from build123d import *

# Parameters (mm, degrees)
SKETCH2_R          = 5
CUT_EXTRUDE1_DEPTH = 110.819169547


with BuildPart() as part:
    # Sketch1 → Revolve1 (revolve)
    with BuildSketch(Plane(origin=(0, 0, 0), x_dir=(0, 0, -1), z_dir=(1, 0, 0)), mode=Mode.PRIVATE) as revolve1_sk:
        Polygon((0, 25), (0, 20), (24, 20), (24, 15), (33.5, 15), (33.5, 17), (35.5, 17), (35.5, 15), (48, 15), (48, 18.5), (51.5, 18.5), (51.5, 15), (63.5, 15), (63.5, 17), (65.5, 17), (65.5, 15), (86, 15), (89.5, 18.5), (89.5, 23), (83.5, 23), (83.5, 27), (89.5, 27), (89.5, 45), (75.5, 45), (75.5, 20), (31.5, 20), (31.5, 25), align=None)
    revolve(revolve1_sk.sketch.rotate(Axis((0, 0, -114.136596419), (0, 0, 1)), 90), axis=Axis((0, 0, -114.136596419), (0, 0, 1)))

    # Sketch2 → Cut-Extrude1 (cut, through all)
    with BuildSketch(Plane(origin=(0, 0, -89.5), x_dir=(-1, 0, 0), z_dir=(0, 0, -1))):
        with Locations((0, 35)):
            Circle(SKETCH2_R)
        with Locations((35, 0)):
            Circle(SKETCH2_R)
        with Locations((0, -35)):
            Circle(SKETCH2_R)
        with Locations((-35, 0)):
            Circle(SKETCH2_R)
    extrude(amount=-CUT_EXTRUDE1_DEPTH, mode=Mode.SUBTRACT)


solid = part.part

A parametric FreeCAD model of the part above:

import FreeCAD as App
import Part
import Sketcher

V = App.Vector
Q = App.Units.Quantity


def add_polygon(sketch, points):
    """Adds a closed chain of lines whose ends are joined by coincident constraints."""
    first, n = sketch.GeometryCount, len(points)
    for a, b in zip(points, points[1:] + points[:1]):
        sketch.addGeometry(Part.LineSegment(App.Vector(*a, 0), App.Vector(*b, 0)), False)
    for i in range(n):
        sketch.addConstraint(Sketcher.Constraint("Coincident", first + i, 2, first + (i + 1) % n, 1))

doc = App.newDocument("Part")
params = doc.addObject("Spreadsheet::Sheet", "Params")
for row, (alias, value) in enumerate([
    ("sketch1_width", "5 mm"),
    ("sketch1_width2", "2 mm"),
    ("sketch1_width3", "4 mm"),
    ("sketch1_width4", "18 mm"),
    ("sketch1_width5", "25 mm"),
    ("revolution_angle", "360 deg"),
    ("sketch2_diameter", "10 mm"),
], start=1):
    params.set(f"A{row}", alias)
    params.set(f"B{row}", "=" + value)
    params.setAlias(f"B{row}", alias)

body = doc.addObject("PartDesign::Body", "Body")

sketch1 = doc.addObject("Sketcher::SketchObject", "Sketch")
body.addObject(sketch1)
sketch1.AttachmentSupport = (doc.YZ_Plane, [""])
sketch1.MapMode = "FlatFace"
add_polygon(sketch1, [(25, 0), (20, 0), (20, -24), (15, -24), (15, -33.5), (17, -33.5), (17, -35.5), (15, -35.5), (15, -48), (18.5, -48), (18.5, -51.5), (15, -51.5), (15, -63.5), (17, -63.5), (17, -65.5), (15, -65.5), (15, -86), (18.5, -89.5), (23, -89.5), (23, -83.5), (27, -83.5), (27, -89.5), (45, -89.5), (45, -75.5), (20, -75.5), (20, -31.5), (25, -31.5)])
sketch1.addConstraint([
    Sketcher.Constraint("Horizontal", 0),
    Sketcher.Constraint("Vertical", 1),
    Sketcher.Constraint("Horizontal", 2),
    Sketcher.Constraint("Vertical", 3),
    Sketcher.Constraint("Horizontal", 4),
    Sketcher.Constraint("Vertical", 5),
    Sketcher.Constraint("Horizontal", 6),
    Sketcher.Constraint("Vertical", 7),
    Sketcher.Constraint("Horizontal", 8),
    Sketcher.Constraint("Vertical", 9),
    Sketcher.Constraint("Horizontal", 10),
    Sketcher.Constraint("Vertical", 11),
    Sketcher.Constraint("Horizontal", 12),
    Sketcher.Constraint("Vertical", 13),
    Sketcher.Constraint("Horizontal", 14),
    Sketcher.Constraint("Vertical", 15),
    Sketcher.Constraint("Horizontal", 17),
    Sketcher.Constraint("Vertical", 18),
    Sketcher.Constraint("Horizontal", 19),
    Sketcher.Constraint("Vertical", 20),
    Sketcher.Constraint("Horizontal", 21),
    Sketcher.Constraint("Vertical", 22),
    Sketcher.Constraint("Horizontal", 23),
    Sketcher.Constraint("Vertical", 24),
    Sketcher.Constraint("Horizontal", 25),
    Sketcher.Constraint("Vertical", 26),
    Sketcher.Constraint("PointOnObject", 0, 2, -1),
    Sketcher.Constraint("Horizontal", 17, 2, 20, 2),
    Sketcher.Constraint("Vertical", 3, 2, 6, 2),
    Sketcher.Constraint("Vertical", 7, 2, 10, 2),
    Sketcher.Constraint("Vertical", 5, 2, 12, 2),
    Sketcher.Constraint("Vertical", 11, 2, 14, 2),
    Sketcher.Constraint("Vertical", 9, 2, 16, 2),
    Sketcher.Constraint("Vertical", 1, 2, 23, 2),
    Sketcher.Constraint("Equal", 0, 2),
    Sketcher.Constraint("Equal", 14, 5),
    Sketcher.Constraint("Equal", 10, 9),
    Sketcher.Constraint("Equal", 5, 13),
    Sketcher.Constraint("DistanceX", 0, 2, 0, 1, 5.0),
    Sketcher.Constraint("DistanceX", 4, 1, 4, 2, 2.0),
    Sketcher.Constraint("DistanceX", 19, 1, 19, 2, 4.0),
    Sketcher.Constraint("DistanceX", 21, 1, 21, 2, 18.0),
    Sketcher.Constraint("DistanceX", 23, 2, 23, 1, 25.0),
    Sketcher.Constraint("DistanceY", 1, 2, 1, 1, 24.0),
    Sketcher.Constraint("DistanceY", 11, 2, 11, 1, 12.0),
    Sketcher.Constraint("DistanceY", 18, 1, 18, 2, 6.0),
    Sketcher.Constraint("DistanceY", 22, 1, 22, 2, 14.0),
    Sketcher.Constraint("DistanceY", 24, 1, 24, 2, 44.0),
    Sketcher.Constraint("Angle", 16, Q("-45 deg")),
    Sketcher.Constraint("DistanceX", 8, 1, 8, 2, 3.5),
    Sketcher.Constraint("DistanceY", 3, 2, 3, 1, 9.5),
    Sketcher.Constraint("DistanceY", 7, 2, 7, 1, 12.5),
    Sketcher.Constraint("DistanceY", 15, 2, 15, 1, 20.5),
    Sketcher.Constraint("DistanceX", -1, 1, 0, 2, 20.0),
])
sketch1.setExpression("Constraints[65]", "Params.sketch1_width")
sketch1.setExpression("Constraints[66]", "Params.sketch1_width2")
sketch1.setExpression("Constraints[67]", "Params.sketch1_width3")
sketch1.setExpression("Constraints[68]", "Params.sketch1_width4")
sketch1.setExpression("Constraints[69]", "Params.sketch1_width5")
revolution = doc.addObject("PartDesign::Revolution", "Revolution")
body.addObject(revolution)
revolution.Profile = sketch1
revolution.ReferenceAxis = (sketch1, ["V_Axis"])
revolution.setExpression("Angle", "Params.revolution_angle")

sketch2 = doc.addObject("Sketcher::SketchObject", "Sketch001")
body.addObject(sketch2)
sketch2.AttachmentSupport = (doc.XY_Plane, [""])
sketch2.MapMode = "FlatFace"
sketch2.AttachmentOffset = App.Placement(V(0, 0, -89.5), App.Rotation())
sketch2.addGeometry([
    Part.Circle(V(0, 35, 0), V(0, 0, 1), 5),
    Part.Circle(V(-35, 0, 0), V(0, 0, 1), 5),
    Part.Circle(V(0, -35, 0), V(0, 0, 1), 5),
    Part.Circle(V(35, 0, 0), V(0, 0, 1), 5),
], False)
sketch2.addConstraint([
    Sketcher.Constraint("Equal", 0, 1),
    Sketcher.Constraint("Equal", 1, 2),
    Sketcher.Constraint("Equal", 2, 3),
    Sketcher.Constraint("Symmetric", 0, 3, 2, 3, -1, 1),
    Sketcher.Constraint("Symmetric", 1, 3, 3, 3, -1, 1),
    Sketcher.Constraint("PointOnObject", 0, 3, -2),
    Sketcher.Constraint("PointOnObject", 1, 3, -1),
    Sketcher.Constraint("Diameter", 0, 10.0),
    Sketcher.Constraint("DistanceY", -1, 1, 0, 3, 35.0),
    Sketcher.Constraint("DistanceX", 1, 3, -1, 1, 35.0),
])
sketch2.setExpression("Constraints[7]", "Params.sketch2_diameter")
pocket1 = doc.addObject("PartDesign::Pocket", "Pocket")
body.addObject(pocket1)
pocket1.Profile = sketch2
pocket1.Type = "ThroughAll"
pocket1.Reversed = True

doc.recompute()
